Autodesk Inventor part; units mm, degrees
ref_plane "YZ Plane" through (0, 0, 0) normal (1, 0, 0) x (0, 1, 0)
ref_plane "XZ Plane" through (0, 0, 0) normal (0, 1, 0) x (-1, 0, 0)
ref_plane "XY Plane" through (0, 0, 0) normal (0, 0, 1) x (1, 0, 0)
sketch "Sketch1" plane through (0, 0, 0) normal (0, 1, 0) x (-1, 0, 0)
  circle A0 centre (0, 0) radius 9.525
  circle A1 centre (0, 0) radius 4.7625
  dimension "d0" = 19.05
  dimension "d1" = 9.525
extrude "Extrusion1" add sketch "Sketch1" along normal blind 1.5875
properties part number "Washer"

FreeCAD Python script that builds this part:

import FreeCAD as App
import Part
import Sketcher
Q = App.Units.Quantity

doc = App.newDocument("Part")
body = doc.addObject("PartDesign::Body", "Body")

sketch1 = doc.addObject("Sketcher::SketchObject", "Sketch")
body.addObject(sketch1)
sketch1.AttachmentSupport = (doc.XZ_Plane, [""])
sketch1.MapMode = "FlatFace"
sketch1.addGeometry([
    Part.Circle(App.Vector(0, 0, 0), App.Vector(0, 0, 1), 9.5),
    Part.Circle(App.Vector(0, 0, 0), App.Vector(0, 0, 1), 4.8),
], False)
sketch1.addConstraint([
    Sketcher.Constraint("Coincident", 0, 3, -1, 1),
    Sketcher.Constraint("Coincident", 1, 3, -1, 1),
    Sketcher.Constraint("Diameter", 0, Q("0.75 in")),
    Sketcher.Constraint("Diameter", 1, Q("0.375 in")),
])
pad1 = doc.addObject("PartDesign::Pad", "Pad")
body.addObject(pad1)
pad1.Profile = sketch1
pad1.Length = Q("0.0625 in")
pad1.Reversed = True

doc.recompute()
